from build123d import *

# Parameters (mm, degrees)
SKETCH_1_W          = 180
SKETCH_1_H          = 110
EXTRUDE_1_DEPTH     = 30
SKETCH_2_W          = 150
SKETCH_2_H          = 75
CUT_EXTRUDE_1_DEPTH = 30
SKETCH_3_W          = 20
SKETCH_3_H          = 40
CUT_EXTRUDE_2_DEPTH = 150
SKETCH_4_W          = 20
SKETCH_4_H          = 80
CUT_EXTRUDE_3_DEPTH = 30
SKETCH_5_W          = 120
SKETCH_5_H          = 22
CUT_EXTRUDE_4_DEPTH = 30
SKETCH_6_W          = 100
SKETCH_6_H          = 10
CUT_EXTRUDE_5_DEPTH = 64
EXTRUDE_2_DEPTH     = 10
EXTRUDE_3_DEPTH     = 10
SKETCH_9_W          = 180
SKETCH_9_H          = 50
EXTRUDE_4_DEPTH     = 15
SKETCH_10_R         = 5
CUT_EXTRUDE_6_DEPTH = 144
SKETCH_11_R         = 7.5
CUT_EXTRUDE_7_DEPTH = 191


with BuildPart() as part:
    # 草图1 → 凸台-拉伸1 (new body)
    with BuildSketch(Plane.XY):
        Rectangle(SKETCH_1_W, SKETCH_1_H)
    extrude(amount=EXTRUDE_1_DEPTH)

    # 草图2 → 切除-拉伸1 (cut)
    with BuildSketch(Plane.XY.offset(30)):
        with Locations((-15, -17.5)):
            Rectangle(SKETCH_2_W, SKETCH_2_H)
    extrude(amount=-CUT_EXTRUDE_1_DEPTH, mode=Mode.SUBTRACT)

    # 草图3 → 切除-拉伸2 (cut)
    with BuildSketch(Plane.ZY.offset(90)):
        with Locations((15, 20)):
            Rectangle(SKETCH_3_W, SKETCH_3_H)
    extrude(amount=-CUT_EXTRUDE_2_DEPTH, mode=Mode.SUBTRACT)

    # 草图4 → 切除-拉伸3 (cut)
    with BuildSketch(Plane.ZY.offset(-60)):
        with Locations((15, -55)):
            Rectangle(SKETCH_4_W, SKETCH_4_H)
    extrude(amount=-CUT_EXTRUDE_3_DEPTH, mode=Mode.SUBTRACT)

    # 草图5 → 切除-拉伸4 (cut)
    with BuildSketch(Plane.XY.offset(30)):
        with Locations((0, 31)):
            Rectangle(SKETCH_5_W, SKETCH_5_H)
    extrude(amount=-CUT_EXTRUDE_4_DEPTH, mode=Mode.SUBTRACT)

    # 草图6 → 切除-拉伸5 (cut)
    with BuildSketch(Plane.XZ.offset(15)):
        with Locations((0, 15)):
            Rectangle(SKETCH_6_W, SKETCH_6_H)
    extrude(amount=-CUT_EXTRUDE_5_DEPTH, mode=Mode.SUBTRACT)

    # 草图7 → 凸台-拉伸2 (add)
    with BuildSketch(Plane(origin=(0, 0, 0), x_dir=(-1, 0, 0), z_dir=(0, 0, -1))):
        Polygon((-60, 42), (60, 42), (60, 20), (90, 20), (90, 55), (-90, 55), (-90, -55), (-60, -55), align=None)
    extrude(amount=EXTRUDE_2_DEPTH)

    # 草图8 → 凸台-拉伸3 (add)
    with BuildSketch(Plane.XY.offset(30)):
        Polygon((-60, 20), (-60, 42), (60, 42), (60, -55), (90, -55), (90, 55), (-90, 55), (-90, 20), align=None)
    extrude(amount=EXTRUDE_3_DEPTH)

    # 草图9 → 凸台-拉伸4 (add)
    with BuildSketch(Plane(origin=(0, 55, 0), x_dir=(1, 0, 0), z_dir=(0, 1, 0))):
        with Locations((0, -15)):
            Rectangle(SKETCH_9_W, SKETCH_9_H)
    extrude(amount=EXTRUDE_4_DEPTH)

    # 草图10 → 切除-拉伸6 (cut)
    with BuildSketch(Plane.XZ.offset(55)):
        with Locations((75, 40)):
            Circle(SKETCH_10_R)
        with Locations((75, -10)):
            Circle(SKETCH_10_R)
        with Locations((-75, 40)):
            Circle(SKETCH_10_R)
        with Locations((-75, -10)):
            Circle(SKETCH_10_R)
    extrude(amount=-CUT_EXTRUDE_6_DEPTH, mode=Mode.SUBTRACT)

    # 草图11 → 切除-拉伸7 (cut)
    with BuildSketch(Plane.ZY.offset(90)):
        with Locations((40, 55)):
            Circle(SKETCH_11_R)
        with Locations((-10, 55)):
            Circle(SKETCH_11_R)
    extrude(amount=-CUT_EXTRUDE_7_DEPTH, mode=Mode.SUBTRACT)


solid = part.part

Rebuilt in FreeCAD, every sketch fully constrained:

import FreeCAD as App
import Part
import Sketcher
from FreeCAD import Vector


def add_polygon(sketch, points):
    """Adds a closed chain of lines whose ends are joined by coincident constraints."""
    first, n = sketch.GeometryCount, len(points)
    for a, b in zip(points, points[1:] + points[:1]):
        sketch.addGeometry(Part.LineSegment(App.Vector(*a, 0), App.Vector(*b, 0)), False)
    for i in range(n):
        sketch.addConstraint(Sketcher.Constraint("Coincident", first + i, 2, first + (i + 1) % n, 1))

doc = App.newDocument("Part")
body = doc.addObject("PartDesign::Body", "Body")

sketch1 = doc.addObject("Sketcher::SketchObject", "Sketch")
body.addObject(sketch1)
sketch1.AttachmentSupport = (doc.XY_Plane, [""])
sketch1.MapMode = "FlatFace"
add_polygon(sketch1, [(-90, 55), (-90, -55), (90, -55), (90, 55)])
sketch1.addConstraint([
    Sketcher.Constraint("Vertical", 0),
    Sketcher.Constraint("Horizontal", 1),
    Sketcher.Constraint("Vertical", 2),
    Sketcher.Constraint("Horizontal", 3),
    Sketcher.Constraint("Symmetric", 0, 2, 2, 2, -1, 1),
    Sketcher.Constraint("DistanceX", 1, 1, 1, 2, 180.0),
    Sketcher.Constraint("DistanceY", 0, 2, 0, 1, 110.0),
])
pad1 = doc.addObject("PartDesign::Pad", "Pad")
body.addObject(pad1)
pad1.Profile = sketch1
pad1.Length = 30

sketch2 = doc.addObject("Sketcher::SketchObject", "Sketch001")
body.addObject(sketch2)
sketch2.AttachmentSupport = (doc.XY_Plane, [""])
sketch2.MapMode = "FlatFace"
sketch2.AttachmentOffset = App.Placement(Vector(0, 0, 30), App.Rotation())
add_polygon(sketch2, [(-90, 20), (-90, -55), (60, -55), (60, 20)])
sketch2.addConstraint([
    Sketcher.Constraint("Vertical", 0),
    Sketcher.Constraint("Horizontal", 1),
    Sketcher.Constraint("Vertical", 2),
    Sketcher.Constraint("Horizontal", 3),
    Sketcher.Constraint("DistanceX", 1, 1, 1, 2, 150.0),
    Sketcher.Constraint("DistanceY", 0, 2, 0, 1, 75.0),
    Sketcher.Constraint("DistanceX", 0, 2, -1, 1, 90.0),
    Sketcher.Constraint("DistanceY", 0, 2, -1, 1, 55.0),
])
pocket1 = doc.addObject("PartDesign::Pocket", "Pocket")
body.addObject(pocket1)
pocket1.Profile = sketch2
pocket1.Length = 30

sketch3 = doc.addObject("Sketcher::SketchObject", "Sketch002")
body.addObject(sketch3)
sketch3.AttachmentSupport = (doc.YZ_Plane, [""])
sketch3.MapMode = "FlatFace"
sketch3.AttachmentOffset = App.Placement(Vector(0, 0, -90), App.Rotation())
add_polygon(sketch3, [(40, 5), (0, 5), (0, 25), (40, 25)])
sketch3.addConstraint([
    Sketcher.Constraint("Horizontal", 0),
    Sketcher.Constraint("Vertical", 1),
    Sketcher.Constraint("Horizontal", 2),
    Sketcher.Constraint("Vertical", 3),
    Sketcher.Constraint("PointOnObject", 0, 2, -2),
    Sketcher.Constraint("DistanceX", 0, 2, 0, 1, 40.0),
    Sketcher.Constraint("DistanceY", 1, 1, 1, 2, 20.0),
    Sketcher.Constraint("DistanceY", -1, 1, 0, 2, 5.0),
])
pocket2 = doc.addObject("PartDesign::Pocket", "Pocket001")
body.addObject(pocket2)
pocket2.Profile = sketch3
pocket2.Length = 150
pocket2.Reversed = True

sketch4 = doc.addObject("Sketcher::SketchObject", "Sketch003")
body.addObject(sketch4)
sketch4.AttachmentSupport = (doc.YZ_Plane, [""])
sketch4.MapMode = "FlatFace"
sketch4.AttachmentOffset = App.Placement(Vector(0, 0, 60), App.Rotation())
add_polygon(sketch4, [(-15, 5), (-95, 5), (-95, 25), (-15, 25)])
sketch4.addConstraint([
    Sketcher.Constraint("Horizontal", 0),
    Sketcher.Constraint("Vertical", 1),
    Sketcher.Constraint("Horizontal", 2),
    Sketcher.Constraint("Vertical", 3),
    Sketcher.Constraint("DistanceX", 0, 2, 0, 1, 80.0),
    Sketcher.Constraint("DistanceY", 1, 1, 1, 2, 20.0),
    Sketcher.Constraint("DistanceX", 0, 2, -1, 1, 95.0),
    Sketcher.Constraint("DistanceY", -1, 1, 0, 2, 5.0),
])
pocket3 = doc.addObject("PartDesign::Pocket", "Pocket002")
body.addObject(pocket3)
pocket3.Profile = sketch4
pocket3.Length = 30
pocket3.Reversed = True

sketch5 = doc.addObject("Sketcher::SketchObject", "Sketch004")
body.addObject(sketch5)
sketch5.AttachmentSupport = (doc.XY_Plane, [""])
sketch5.MapMode = "FlatFace"
sketch5.AttachmentOffset = App.Placement(Vector(0, 0, 30), App.Rotation())
add_polygon(sketch5, [(-60, 42), (-60, 20), (60, 20), (60, 42)])
sketch5.addConstraint([
    Sketcher.Constraint("Vertical", 0),
    Sketcher.Constraint("Horizontal", 1),
    Sketcher.Constraint("Vertical", 2),
    Sketcher.Constraint("Horizontal", 3),
    Sketcher.Constraint("DistanceX", 1, 1, 1, 2, 120.0),
    Sketcher.Constraint("DistanceY", 0, 2, 0, 1, 22.0),
    Sketcher.Constraint("DistanceX", 0, 2, -1, 1, 60.0),
    Sketcher.Constraint("DistanceY", -1, 1, 0, 2, 20.0),
])
pocket4 = doc.addObject("PartDesign::Pocket", "Pocket003")
body.addObject(pocket4)
pocket4.Profile = sketch5
pocket4.Length = 30

sketch6 = doc.addObject("Sketcher::SketchObject", "Sketch005")
body.addObject(sketch6)
sketch6.AttachmentSupport = (doc.XZ_Plane, [""])
sketch6.MapMode = "FlatFace"
sketch6.AttachmentOffset = App.Placement(Vector(0, 0, 15), App.Rotation())
add_polygon(sketch6, [(-50, 20), (-50, 10), (50, 10), (50, 20)])
sketch6.addConstraint([
    Sketcher.Constraint("Vertical", 0),
    Sketcher.Constraint("Horizontal", 1),
    Sketcher.Constraint("Vertical", 2),
    Sketcher.Constraint("Horizontal", 3),
    Sketcher.Constraint("DistanceX", 1, 1, 1, 2, 100.0),
    Sketcher.Constraint("DistanceY", 0, 2, 0, 1, 10.0),
    Sketcher.Constraint("DistanceX", 0, 2, -1, 1, 50.0),
    Sketcher.Constraint("DistanceY", -1, 1, 0, 2, 10.0),
])
pocket5 = doc.addObject("PartDesign::Pocket", "Pocket004")
body.addObject(pocket5)
pocket5.Profile = sketch6
pocket5.Length = 64

sketch7 = doc.addObject("Sketcher::SketchObject", "Sketch006")
body.addObject(sketch7)
sketch7.AttachmentSupport = (doc.XY_Plane, [""])
sketch7.MapMode = "FlatFace"
add_polygon(sketch7, [(60, 42), (-60, 42), (-60, 20), (-90, 20), (-90, 55), (90, 55), (90, -55), (60, -55)])
sketch7.addConstraint([
    Sketcher.Constraint("Horizontal", 0),
    Sketcher.Constraint("Vertical", 1),
    Sketcher.Constraint("Horizontal", 2),
    Sketcher.Constraint("Vertical", 3),
    Sketcher.Constraint("Horizontal", 4),
    Sketcher.Constraint("Vertical", 5),
    Sketcher.Constraint("Horizontal", 6),
    Sketcher.Constraint("Vertical", 7),
    Sketcher.Constraint("Symmetric", 3, 2, 5, 2, -1, 1),
    Sketcher.Constraint("Equal", 2, 6),
    Sketcher.Constraint("DistanceX", 0, 2, 0, 1, 120.0),
    Sketcher.Constraint("DistanceX", 2, 2, 2, 1, 30.0),
    Sketcher.Constraint("DistanceY", 1, 2, 1, 1, 22.0),
    Sketcher.Constraint("DistanceY", 3, 1, 3, 2, 35.0),
    Sketcher.Constraint("DistanceY", 5, 2, 5, 1, 110.0),
])
pad2 = doc.addObject("PartDesign::Pad", "Pad001")
body.addObject(pad2)
pad2.Profile = sketch7
pad2.Length = 10
pad2.Reversed = True

sketch8 = doc.addObject("Sketcher::SketchObject", "Sketch007")
body.addObject(sketch8)
sketch8.AttachmentSupport = (doc.XY_Plane, [""])
sketch8.MapMode = "FlatFace"
sketch8.AttachmentOffset = App.Placement(Vector(0, 0, 30), App.Rotation())
add_polygon(sketch8, [(-60, 20), (-60, 42), (60, 42), (60, -55), (90, -55), (90, 55), (-90, 55), (-90, 20)])
sketch8.addConstraint([
    Sketcher.Constraint("Vertical", 0),
    Sketcher.Constraint("Horizontal", 1),
    Sketcher.Constraint("Vertical", 2),
    Sketcher.Constraint("Horizontal", 3),
    Sketcher.Constraint("Vertical", 4),
    Sketcher.Constraint("Horizontal", 5),
    Sketcher.Constraint("Vertical", 6),
    Sketcher.Constraint("Horizontal", 7),
    Sketcher.Constraint("Symmetric", 3, 2, 5, 2, -1, 1),
    Sketcher.Constraint("Equal", 3, 7),
    Sketcher.Constraint("DistanceX", 1, 1, 1, 2, 120.0),
    Sketcher.Constraint("DistanceX", 3, 1, 3, 2, 30.0),
    Sketcher.Constraint("DistanceY", 0, 1, 0, 2, 22.0),
    Sketcher.Constraint("DistanceY", 2, 2, 2, 1, 97.0),
    Sketcher.Constraint("DistanceY", 4, 1, 4, 2, 110.0),
])
pad3 = doc.addObject("PartDesign::Pad", "Pad002")
body.addObject(pad3)
pad3.Profile = sketch8
pad3.Length = 10

sketch9 = doc.addObject("Sketcher::SketchObject", "Sketch008")
body.addObject(sketch9)
sketch9.AttachmentSupport = (doc.XZ_Plane, [""])
sketch9.MapMode = "FlatFace"
sketch9.AttachmentOffset = App.Placement(Vector(0, 0, -55), App.Rotation())
add_polygon(sketch9, [(-90, -10), (-90, 40), (90, 40), (90, -10)])
sketch9.addConstraint([
    Sketcher.Constraint("Vertical", 0),
    Sketcher.Constraint("Horizontal", 1),
    Sketcher.Constraint("Vertical", 2),
    Sketcher.Constraint("Horizontal", 3),
    Sketcher.Constraint("DistanceX", 1, 1, 1, 2, 180.0),
    Sketcher.Constraint("DistanceY", 0, 1, 0, 2, 50.0),
    Sketcher.Constraint("DistanceX", 0, 2, -1, 1, 90.0),
    Sketcher.Constraint("DistanceY", -1, 1, 0, 2, 40.0),
])
pad4 = doc.addObject("PartDesign::Pad", "Pad003")
body.addObject(pad4)
pad4.Profile = sketch9
pad4.Length = 15
pad4.Reversed = True

sketch10 = doc.addObject("Sketcher::SketchObject", "Sketch009")
body.addObject(sketch10)
sketch10.AttachmentSupport = (doc.XZ_Plane, [""])
sketch10.MapMode = "FlatFace"
sketch10.AttachmentOffset = App.Placement(Vector(0, 0, 55), App.Rotation())
sketch10.addGeometry([
    Part.Circle(Vector(75, 40, 0), Vector(0, 0, 1), 5),
    Part.Circle(Vector(75, -10, 0), Vector(0, 0, 1), 5),
    Part.Circle(Vector(-75, 40, 0), Vector(0, 0, 1), 5),
    Part.Circle(Vector(-75, -10, 0), Vector(0, 0, 1), 5),
], False)
sketch10.addConstraint([
    Sketcher.Constraint("Equal", 0, 1),
    Sketcher.Constraint("Equal", 1, 2),
    Sketcher.Constraint("Equal", 2, 3),
    Sketcher.Constraint("Symmetric", 0, 3, 2, 3, -2),
    Sketcher.Constraint("Symmetric", 1, 3, 3, 3, -2),
    Sketcher.Constraint("Vertical", 0, 3, 1, 3),
    Sketcher.Constraint("Diameter", 0, 10.0),
    Sketcher.Constraint("DistanceX", -1, 1, 0, 3, 75.0),
    Sketcher.Constraint("DistanceY", -1, 1, 0, 3, 40.0),
    Sketcher.Constraint("DistanceY", 1, 3, -1, 1, 10.0),
])
pocket6 = doc.addObject("PartDesign::Pocket", "Pocket005")
body.addObject(pocket6)
pocket6.Profile = sketch10
pocket6.Length = 144

sketch11 = doc.addObject("Sketcher::SketchObject", "Sketch010")
body.addObject(sketch11)
sketch11.AttachmentSupport = (doc.YZ_Plane, [""])
sketch11.MapMode = "FlatFace"
sketch11.AttachmentOffset = App.Placement(Vector(0, 0, -90), App.Rotation())
sketch11.addGeometry([
    Part.Circle(Vector(55, 40, 0), Vector(0, 0, 1), 7.5),
    Part.Circle(Vector(55, -10, 0), Vector(0, 0, 1), 7.5),
], False)
sketch11.addConstraint([
    Sketcher.Constraint("Equal", 0, 1),
    Sketcher.Constraint("Vertical", 0, 3, 1, 3),
    Sketcher.Constraint("Diameter", 0, 15.0),
    Sketcher.Constraint("DistanceX", -1, 1, 0, 3, 55.0),
    Sketcher.Constraint("DistanceY", -1, 1, 0, 3, 40.0),
    Sketcher.Constraint("DistanceY", 1, 3, -1, 1, 10.0),
])
pocket7 = doc.addObject("PartDesign::Pocket", "Pocket006")
body.addObject(pocket7)
pocket7.Profile = sketch11
pocket7.Length = 191
pocket7.Reversed = True

doc.recompute()
